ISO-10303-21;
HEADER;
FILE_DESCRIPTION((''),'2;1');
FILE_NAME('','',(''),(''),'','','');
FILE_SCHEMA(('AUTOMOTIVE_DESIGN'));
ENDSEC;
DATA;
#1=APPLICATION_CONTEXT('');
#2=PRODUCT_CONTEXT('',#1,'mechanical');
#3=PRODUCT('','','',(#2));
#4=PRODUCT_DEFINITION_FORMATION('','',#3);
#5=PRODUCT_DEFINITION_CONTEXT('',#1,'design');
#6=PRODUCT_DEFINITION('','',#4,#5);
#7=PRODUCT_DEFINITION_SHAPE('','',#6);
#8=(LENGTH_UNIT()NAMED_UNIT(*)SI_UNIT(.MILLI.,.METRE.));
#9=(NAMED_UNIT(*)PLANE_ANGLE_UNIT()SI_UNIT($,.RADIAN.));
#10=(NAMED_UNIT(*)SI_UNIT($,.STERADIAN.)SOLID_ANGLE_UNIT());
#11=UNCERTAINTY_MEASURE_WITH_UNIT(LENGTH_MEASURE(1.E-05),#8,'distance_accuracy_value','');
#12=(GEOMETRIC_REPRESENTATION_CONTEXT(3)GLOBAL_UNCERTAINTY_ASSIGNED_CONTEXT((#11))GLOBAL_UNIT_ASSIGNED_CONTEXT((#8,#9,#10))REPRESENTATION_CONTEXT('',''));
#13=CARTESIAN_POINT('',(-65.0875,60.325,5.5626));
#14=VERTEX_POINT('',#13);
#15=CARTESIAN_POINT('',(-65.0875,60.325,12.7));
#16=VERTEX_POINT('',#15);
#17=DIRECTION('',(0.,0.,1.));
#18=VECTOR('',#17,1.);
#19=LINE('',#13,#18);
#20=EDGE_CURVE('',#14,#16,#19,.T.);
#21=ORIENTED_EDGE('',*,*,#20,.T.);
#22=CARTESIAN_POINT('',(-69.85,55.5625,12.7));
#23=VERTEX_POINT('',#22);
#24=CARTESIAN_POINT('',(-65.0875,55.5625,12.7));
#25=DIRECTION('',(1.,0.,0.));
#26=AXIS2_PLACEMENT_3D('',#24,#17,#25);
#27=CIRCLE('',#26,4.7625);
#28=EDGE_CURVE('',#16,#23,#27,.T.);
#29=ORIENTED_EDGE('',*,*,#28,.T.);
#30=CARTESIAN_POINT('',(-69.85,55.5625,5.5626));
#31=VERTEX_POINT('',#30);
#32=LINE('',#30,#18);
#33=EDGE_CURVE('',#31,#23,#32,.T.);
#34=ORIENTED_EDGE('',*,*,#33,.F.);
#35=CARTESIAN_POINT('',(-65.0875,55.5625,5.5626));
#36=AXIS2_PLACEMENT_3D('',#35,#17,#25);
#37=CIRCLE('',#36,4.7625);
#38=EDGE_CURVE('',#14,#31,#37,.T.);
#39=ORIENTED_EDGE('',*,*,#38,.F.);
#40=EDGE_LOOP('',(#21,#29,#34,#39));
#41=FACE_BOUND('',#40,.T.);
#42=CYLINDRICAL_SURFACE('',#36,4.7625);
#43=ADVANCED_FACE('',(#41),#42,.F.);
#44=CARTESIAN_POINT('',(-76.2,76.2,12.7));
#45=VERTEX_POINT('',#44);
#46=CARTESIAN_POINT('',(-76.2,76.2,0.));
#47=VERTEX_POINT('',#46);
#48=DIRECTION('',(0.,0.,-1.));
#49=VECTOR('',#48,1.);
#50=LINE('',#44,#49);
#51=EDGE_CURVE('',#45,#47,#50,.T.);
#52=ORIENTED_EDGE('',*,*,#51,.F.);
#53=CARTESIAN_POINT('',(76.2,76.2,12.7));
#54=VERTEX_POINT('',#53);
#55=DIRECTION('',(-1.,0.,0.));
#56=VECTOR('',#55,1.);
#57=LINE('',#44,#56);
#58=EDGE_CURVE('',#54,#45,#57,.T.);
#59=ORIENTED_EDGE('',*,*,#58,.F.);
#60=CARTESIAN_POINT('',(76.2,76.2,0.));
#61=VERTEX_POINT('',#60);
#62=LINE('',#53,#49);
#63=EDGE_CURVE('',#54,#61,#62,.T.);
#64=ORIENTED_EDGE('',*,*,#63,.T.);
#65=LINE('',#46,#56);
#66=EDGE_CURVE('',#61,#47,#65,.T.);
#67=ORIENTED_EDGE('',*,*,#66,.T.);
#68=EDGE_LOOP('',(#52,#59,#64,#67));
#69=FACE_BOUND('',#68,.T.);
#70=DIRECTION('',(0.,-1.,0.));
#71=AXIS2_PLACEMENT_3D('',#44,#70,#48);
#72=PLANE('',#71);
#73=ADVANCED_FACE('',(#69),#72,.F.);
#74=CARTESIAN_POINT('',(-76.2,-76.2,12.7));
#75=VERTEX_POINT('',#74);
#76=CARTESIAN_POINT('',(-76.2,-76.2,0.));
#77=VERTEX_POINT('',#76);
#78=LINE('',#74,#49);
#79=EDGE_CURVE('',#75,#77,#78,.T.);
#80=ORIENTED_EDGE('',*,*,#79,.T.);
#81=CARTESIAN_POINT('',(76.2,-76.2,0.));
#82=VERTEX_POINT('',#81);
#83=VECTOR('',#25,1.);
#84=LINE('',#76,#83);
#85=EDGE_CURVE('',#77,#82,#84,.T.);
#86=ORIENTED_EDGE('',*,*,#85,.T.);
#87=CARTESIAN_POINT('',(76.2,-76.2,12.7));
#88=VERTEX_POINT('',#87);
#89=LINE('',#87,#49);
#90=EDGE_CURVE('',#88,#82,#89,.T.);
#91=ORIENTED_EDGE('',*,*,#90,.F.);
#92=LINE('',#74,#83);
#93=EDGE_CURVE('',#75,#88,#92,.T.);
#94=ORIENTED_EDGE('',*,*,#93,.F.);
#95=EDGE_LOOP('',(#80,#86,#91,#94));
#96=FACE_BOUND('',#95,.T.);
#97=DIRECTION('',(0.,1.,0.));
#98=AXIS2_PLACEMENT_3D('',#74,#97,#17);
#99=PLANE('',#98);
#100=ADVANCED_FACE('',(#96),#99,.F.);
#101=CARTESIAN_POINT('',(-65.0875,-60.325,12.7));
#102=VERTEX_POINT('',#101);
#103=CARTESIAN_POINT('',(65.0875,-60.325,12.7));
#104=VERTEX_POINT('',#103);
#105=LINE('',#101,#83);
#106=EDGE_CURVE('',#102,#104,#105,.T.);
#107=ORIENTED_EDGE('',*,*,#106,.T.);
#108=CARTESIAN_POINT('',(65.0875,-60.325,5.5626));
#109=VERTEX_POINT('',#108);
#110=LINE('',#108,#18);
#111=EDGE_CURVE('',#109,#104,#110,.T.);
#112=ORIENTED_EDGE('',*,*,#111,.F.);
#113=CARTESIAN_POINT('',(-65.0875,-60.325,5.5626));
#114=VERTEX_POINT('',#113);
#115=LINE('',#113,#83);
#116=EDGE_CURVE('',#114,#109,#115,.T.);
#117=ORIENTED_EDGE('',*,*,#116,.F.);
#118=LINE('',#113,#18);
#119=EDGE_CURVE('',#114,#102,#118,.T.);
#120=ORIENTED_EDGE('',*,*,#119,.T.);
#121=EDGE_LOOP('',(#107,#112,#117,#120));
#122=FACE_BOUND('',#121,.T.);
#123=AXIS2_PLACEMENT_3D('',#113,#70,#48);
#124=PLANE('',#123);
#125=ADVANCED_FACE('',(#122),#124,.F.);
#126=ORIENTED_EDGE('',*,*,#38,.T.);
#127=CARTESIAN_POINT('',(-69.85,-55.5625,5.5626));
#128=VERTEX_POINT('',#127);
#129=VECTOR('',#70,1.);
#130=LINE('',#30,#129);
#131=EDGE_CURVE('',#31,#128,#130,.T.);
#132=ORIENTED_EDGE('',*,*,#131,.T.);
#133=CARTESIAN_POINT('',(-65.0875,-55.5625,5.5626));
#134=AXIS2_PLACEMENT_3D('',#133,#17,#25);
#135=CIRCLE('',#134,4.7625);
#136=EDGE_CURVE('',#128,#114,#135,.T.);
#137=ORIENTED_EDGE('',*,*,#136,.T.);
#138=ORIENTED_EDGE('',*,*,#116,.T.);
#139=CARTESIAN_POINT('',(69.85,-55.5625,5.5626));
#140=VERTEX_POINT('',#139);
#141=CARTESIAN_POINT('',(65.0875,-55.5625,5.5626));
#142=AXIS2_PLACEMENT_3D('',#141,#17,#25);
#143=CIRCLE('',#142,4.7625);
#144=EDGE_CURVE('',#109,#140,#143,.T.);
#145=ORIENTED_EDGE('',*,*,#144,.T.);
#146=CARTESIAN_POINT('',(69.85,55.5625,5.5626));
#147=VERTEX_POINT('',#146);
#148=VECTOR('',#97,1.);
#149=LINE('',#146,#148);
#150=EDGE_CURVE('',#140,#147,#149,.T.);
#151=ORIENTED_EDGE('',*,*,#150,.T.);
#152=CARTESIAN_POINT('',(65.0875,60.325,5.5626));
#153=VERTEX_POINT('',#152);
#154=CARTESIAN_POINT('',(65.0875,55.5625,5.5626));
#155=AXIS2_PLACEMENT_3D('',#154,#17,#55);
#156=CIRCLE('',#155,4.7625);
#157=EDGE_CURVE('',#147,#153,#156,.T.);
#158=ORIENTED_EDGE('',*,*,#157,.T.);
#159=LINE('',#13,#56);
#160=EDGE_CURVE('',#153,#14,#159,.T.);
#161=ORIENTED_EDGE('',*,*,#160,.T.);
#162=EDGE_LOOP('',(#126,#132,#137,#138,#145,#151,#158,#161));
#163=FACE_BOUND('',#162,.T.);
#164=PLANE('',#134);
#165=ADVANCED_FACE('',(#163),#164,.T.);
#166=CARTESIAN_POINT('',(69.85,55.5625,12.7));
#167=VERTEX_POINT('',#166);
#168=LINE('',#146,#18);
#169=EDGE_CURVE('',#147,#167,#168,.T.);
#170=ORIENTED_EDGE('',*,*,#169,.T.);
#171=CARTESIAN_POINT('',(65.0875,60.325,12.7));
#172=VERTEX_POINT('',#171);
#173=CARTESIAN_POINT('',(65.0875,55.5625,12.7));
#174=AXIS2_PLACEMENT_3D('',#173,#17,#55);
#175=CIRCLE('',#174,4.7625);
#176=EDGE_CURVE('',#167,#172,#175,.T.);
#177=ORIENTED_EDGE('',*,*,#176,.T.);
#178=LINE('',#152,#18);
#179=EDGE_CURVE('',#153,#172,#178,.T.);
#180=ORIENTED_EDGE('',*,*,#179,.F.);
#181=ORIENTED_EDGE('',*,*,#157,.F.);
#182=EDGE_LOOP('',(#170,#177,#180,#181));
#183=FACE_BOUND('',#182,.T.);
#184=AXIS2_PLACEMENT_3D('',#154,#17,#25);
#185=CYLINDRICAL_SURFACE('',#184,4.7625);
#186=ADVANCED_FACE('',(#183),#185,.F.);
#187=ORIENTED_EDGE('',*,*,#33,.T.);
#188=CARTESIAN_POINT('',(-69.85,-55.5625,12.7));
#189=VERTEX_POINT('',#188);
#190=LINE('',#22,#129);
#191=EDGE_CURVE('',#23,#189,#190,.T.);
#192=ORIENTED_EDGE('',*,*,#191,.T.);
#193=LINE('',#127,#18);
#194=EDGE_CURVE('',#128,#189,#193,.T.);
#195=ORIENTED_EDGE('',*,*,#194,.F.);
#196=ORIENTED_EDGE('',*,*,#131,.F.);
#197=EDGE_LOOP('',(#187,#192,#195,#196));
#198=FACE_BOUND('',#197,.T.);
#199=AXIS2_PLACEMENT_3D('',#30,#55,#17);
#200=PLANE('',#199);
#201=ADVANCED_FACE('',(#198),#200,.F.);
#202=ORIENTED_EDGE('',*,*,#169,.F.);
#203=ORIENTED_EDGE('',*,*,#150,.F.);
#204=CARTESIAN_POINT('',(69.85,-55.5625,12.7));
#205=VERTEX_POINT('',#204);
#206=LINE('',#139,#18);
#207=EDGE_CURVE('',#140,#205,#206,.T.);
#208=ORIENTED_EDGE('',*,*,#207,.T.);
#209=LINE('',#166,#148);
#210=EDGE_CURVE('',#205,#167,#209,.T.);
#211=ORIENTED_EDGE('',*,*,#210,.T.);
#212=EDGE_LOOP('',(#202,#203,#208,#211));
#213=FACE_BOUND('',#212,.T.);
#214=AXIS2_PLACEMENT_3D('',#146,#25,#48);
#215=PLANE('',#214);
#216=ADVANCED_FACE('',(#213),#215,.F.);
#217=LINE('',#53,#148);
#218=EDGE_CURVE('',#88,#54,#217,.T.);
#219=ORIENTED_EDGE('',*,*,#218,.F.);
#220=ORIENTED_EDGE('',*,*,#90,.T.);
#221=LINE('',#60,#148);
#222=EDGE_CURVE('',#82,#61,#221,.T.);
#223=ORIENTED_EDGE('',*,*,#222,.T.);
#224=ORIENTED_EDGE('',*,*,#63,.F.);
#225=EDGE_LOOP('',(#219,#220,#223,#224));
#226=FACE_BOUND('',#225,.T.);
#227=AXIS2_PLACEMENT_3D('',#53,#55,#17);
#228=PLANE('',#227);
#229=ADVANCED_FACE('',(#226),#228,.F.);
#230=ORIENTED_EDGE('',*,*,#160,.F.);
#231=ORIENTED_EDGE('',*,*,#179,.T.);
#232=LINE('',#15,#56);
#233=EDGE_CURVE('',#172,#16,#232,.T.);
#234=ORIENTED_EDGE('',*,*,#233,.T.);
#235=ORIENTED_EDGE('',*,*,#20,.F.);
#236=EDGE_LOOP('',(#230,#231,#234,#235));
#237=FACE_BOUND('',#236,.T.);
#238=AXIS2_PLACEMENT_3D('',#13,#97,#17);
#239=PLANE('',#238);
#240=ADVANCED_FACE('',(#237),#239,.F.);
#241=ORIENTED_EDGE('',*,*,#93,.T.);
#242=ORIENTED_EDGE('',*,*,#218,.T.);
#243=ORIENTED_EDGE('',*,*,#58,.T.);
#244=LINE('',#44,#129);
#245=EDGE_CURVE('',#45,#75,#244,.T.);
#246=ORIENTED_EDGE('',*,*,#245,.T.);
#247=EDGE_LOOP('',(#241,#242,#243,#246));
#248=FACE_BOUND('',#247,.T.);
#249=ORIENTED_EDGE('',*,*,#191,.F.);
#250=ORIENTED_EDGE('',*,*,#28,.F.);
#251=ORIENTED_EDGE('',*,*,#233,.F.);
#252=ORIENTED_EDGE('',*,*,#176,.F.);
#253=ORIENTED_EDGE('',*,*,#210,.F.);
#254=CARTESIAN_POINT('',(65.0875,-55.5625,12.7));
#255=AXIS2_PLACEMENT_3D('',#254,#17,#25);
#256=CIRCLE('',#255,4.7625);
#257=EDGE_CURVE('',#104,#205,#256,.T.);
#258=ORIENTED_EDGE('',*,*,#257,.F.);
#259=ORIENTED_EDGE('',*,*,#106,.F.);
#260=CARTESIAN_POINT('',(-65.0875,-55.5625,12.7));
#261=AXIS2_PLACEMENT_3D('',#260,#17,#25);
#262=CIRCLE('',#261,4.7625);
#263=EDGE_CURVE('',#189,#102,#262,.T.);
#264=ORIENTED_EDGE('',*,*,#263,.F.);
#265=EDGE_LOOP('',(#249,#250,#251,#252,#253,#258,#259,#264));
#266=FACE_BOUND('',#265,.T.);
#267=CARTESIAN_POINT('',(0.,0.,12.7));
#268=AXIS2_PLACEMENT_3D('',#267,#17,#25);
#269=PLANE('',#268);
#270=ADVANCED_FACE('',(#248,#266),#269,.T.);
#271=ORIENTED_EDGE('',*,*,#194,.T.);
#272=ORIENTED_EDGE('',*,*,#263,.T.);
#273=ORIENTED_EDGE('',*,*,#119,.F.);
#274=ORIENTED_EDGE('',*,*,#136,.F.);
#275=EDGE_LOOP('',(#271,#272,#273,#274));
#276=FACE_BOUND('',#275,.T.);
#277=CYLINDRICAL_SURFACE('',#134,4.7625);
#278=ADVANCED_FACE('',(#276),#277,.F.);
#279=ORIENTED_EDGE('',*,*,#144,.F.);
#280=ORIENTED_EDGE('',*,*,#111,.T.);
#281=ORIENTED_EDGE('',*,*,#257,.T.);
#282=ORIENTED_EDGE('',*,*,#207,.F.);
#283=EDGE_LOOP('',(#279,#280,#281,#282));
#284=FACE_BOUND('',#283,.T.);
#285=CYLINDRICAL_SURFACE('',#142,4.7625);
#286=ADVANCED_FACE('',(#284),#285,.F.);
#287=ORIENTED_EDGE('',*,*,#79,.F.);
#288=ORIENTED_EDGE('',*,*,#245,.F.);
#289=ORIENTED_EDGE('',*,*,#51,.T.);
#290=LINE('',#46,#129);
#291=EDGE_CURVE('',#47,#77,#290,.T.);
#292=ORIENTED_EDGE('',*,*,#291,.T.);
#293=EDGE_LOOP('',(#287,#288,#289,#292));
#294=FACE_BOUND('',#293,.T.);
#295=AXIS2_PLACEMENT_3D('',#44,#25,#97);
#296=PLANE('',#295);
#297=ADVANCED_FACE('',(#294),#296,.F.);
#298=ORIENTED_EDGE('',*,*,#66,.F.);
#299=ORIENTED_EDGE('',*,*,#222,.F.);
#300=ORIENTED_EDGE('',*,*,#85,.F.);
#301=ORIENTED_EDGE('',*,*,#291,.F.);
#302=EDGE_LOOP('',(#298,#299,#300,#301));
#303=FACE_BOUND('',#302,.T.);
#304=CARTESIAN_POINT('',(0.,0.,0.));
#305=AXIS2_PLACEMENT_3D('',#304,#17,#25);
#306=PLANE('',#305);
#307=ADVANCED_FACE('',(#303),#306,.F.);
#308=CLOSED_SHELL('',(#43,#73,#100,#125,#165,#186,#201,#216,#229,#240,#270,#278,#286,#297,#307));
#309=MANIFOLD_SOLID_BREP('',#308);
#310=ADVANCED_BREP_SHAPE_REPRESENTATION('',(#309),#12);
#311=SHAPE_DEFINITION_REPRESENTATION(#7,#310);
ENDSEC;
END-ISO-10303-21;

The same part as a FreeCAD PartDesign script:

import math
import FreeCAD as App
import Part
import Sketcher

V = App.Vector
Q = App.Units.Quantity


def add_polygon(sketch, points):
    """Adds a closed chain of lines whose ends are joined by coincident constraints."""
    first, n = sketch.GeometryCount, len(points)
    for a, b in zip(points, points[1:] + points[:1]):
        sketch.addGeometry(Part.LineSegment(App.Vector(*a, 0), App.Vector(*b, 0)), False)
    for i in range(n):
        sketch.addConstraint(Sketcher.Constraint("Coincident", first + i, 2, first + (i + 1) % n, 1))

doc = App.newDocument("Part")
body = doc.addObject("PartDesign::Body", "Body")

# Sketch on XY plane
sketch1 = body.newObject("Sketcher::SketchObject", "Sketch")
sketch1.AttachmentSupport = (doc.getObject("XY_Plane"), [""])
sketch1.MapMode = "FlatFace"
add_polygon(sketch1, [(-76, 76), (-76, -76), (76, -76), (76, 76)])  # lines 0-3
sketch1.addConstraint(Sketcher.Constraint("Vertical", 0))
sketch1.addConstraint(Sketcher.Constraint("Horizontal", 1))
sketch1.addConstraint(Sketcher.Constraint("Vertical", 2))
sketch1.addConstraint(Sketcher.Constraint("Horizontal", 3))
sketch1.addConstraint(Sketcher.Constraint("Symmetric", 0, 2, 2, 2, -1, 1))
sketch1.addConstraint(Sketcher.Constraint("Equal", 3, 0))
sketch1.addConstraint(Sketcher.Constraint("DistanceX", 1, 1, 1, 2, Q("6 in")))
pad1 = body.newObject("PartDesign::Pad", "Pad")
pad1.Profile = sketch1
pad1.Length = Q("0.5 in")

# Sketch on XY plane
sketch2 = body.newObject("Sketcher::SketchObject", "Sketch001")
sketch2.AttachmentSupport = (doc.getObject("XY_Plane"), [""])
sketch2.MapMode = "FlatFace"
sketch2.AttachmentOffset = App.Placement(V(0, 0, 0.5 * 25.4), App.Rotation())
sketch2.addGeometry(Part.LineSegment(V(65.1, 60.3, 0), V(-65.1, 60.3, 0)), False)
sketch2.addGeometry(Part.ArcOfCircle(Part.Circle(V(-65.1, 55.6, 0), V(0, 0, 1), 4.8), math.radians(90), math.radians(180)), False)
sketch2.addGeometry(Part.LineSegment(V(-69.8, 55.6, 0), V(-69.8, -55.6, 0)), False)
sketch2.addGeometry(Part.ArcOfCircle(Part.Circle(V(-65.1, -55.6, 0), V(0, 0, 1), 4.8), math.radians(-180), math.radians(-90)), False)
sketch2.addGeometry(Part.LineSegment(V(-65.1, -60.3, 0), V(65.1, -60.3, 0)), False)
sketch2.addGeometry(Part.ArcOfCircle(Part.Circle(V(65.1, -55.6, 0), V(0, 0, 1), 4.8), math.radians(-90), math.radians(0)), False)
sketch2.addGeometry(Part.LineSegment(V(69.8, -55.6, 0), V(69.8, 55.6, 0)), False)
sketch2.addGeometry(Part.ArcOfCircle(Part.Circle(V(65.1, 55.6, 0), V(0, 0, 1), 4.8), math.radians(0), math.radians(90)), False)
sketch2.addConstraint(Sketcher.Constraint("Tangent", 0, 2, 1, 1))
sketch2.addConstraint(Sketcher.Constraint("Tangent", 1, 2, 2, 1))
sketch2.addConstraint(Sketcher.Constraint("Tangent", 2, 2, 3, 1))
sketch2.addConstraint(Sketcher.Constraint("Tangent", 3, 2, 4, 1))
sketch2.addConstraint(Sketcher.Constraint("Tangent", 4, 2, 5, 1))
sketch2.addConstraint(Sketcher.Constraint("Tangent", 5, 2, 6, 1))
sketch2.addConstraint(Sketcher.Constraint("Tangent", 6, 2, 7, 1))
sketch2.addConstraint(Sketcher.Constraint("Tangent", 7, 2, 0, 1))
sketch2.addConstraint(Sketcher.Constraint("Horizontal", 0))
sketch2.addConstraint(Sketcher.Constraint("Vertical", 2))
sketch2.addConstraint(Sketcher.Constraint("Horizontal", 4))
sketch2.addConstraint(Sketcher.Constraint("Vertical", 6))
sketch2.addConstraint(Sketcher.Constraint("Equal", 1, 3))
sketch2.addConstraint(Sketcher.Constraint("Equal", 3, 5))
sketch2.addConstraint(Sketcher.Constraint("Equal", 5, 7))
sketch2.addConstraint(Sketcher.Constraint("Symmetric", 1, 3, 5, 3, -1, 1))
sketch2.addConstraint(Sketcher.Constraint("Radius", 1, Q("0.1875 in")))
sketch2.addConstraint(Sketcher.Constraint("DistanceX", 0, 2, 0, 1, Q("5.125 in")))
sketch2.addConstraint(Sketcher.Constraint("DistanceY", 2, 2, 2, 1, Q("4.375 in")))
pocket1 = body.newObject("PartDesign::Pocket", "Pocket")
pocket1.Profile = sketch2
pocket1.Length = Q("0.281 in")

doc.recompute()
